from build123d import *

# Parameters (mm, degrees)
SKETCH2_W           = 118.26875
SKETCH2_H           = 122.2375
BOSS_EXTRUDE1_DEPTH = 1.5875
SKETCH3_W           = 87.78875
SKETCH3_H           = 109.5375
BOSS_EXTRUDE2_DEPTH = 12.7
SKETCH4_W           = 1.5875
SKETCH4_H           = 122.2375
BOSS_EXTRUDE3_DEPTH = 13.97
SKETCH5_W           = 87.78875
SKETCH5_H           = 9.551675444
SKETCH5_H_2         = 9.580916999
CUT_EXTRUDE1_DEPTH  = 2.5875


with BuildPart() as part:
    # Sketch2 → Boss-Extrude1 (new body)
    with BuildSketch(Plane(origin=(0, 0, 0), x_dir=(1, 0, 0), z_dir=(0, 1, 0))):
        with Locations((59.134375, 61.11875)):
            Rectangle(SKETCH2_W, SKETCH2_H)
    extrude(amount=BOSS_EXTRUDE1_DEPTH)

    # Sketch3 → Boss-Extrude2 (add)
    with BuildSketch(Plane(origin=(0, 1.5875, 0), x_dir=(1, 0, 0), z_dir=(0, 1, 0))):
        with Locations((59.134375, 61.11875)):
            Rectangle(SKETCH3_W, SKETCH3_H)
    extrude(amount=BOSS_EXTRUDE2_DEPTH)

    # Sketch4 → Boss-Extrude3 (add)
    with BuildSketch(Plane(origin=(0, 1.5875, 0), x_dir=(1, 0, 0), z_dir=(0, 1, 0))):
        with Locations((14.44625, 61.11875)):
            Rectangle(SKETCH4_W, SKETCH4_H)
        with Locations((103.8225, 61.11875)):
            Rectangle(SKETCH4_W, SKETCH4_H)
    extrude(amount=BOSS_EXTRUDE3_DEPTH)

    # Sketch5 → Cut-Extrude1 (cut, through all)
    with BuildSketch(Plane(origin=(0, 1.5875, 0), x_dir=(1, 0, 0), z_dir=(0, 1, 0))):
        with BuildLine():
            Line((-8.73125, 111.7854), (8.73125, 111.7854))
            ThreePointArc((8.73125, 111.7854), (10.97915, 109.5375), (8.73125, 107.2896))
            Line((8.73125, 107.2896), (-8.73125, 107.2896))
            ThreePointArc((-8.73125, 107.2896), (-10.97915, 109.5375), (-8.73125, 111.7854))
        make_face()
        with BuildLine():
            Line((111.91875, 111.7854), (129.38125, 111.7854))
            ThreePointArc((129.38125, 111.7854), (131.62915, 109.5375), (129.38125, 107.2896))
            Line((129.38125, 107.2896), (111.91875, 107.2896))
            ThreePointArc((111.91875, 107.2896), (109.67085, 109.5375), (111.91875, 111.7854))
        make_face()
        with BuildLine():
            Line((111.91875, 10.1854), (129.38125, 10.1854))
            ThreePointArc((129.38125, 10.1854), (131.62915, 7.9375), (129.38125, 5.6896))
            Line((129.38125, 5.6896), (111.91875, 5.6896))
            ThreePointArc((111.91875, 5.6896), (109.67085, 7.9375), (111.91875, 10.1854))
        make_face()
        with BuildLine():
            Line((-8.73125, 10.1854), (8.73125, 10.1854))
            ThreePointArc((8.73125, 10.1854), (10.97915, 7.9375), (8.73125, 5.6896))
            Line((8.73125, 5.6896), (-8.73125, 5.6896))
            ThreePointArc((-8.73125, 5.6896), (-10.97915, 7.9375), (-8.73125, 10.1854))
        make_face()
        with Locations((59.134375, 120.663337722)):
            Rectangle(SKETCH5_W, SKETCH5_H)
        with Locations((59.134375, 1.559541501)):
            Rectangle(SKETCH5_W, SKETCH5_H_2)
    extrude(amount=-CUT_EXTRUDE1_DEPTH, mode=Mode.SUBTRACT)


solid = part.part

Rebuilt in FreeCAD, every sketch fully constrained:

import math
import FreeCAD as App
import Part
import Sketcher
from FreeCAD import Vector
Q = App.Units.Quantity

doc = App.newDocument("Part")
params = doc.addObject("Spreadsheet::Sheet", "Params")
for row, (alias, value) in enumerate([
    ("sketch1_width", "4.65625 in"),
    ("sketch1_height", "4.8125 in"),
    ("pad1_length", "0.0625 in"),
    ("sketch2_height", "4.3125 in"),
    ("pad2_length", "0.5 in"),
    ("sketch3_width", "0.0625 in"),
    ("sketch3_height", "4.8125 in"),
    ("pad3_length", "0.55 in"),
    ("sketch4_width", "0.6875 in"),
], start=1):
    params.set(f"A{row}", alias)
    params.set(f"B{row}", "=" + value)
    params.setAlias(f"B{row}", alias)

body = doc.addObject("PartDesign::Body", "Body")

# Sketch on XZ plane
sketch1 = body.newObject("Sketcher::SketchObject", "Sketch")
sketch1.AttachmentSupport = (doc.getObject("XZ_Plane"), [""])
sketch1.MapMode = "FlatFace"
sketch1.addGeometry(Part.LineSegment(Vector(0, -122.2375, 0), Vector(0, 0, 0)), False)
sketch1.addGeometry(Part.LineSegment(Vector(0, 0, 0), Vector(118.26875, 0, 0)), False)
sketch1.addGeometry(Part.LineSegment(Vector(118.26875, 0, 0), Vector(118.26875, -122.2375, 0)), False)
sketch1.addGeometry(Part.LineSegment(Vector(118.26875, -122.2375, 0), Vector(0, -122.2375, 0)), False)
sketch1.addConstraint(Sketcher.Constraint("Coincident", 0, 2, 1, 1))
sketch1.addConstraint(Sketcher.Constraint("Coincident", 1, 2, 2, 1))
sketch1.addConstraint(Sketcher.Constraint("Coincident", 2, 2, 3, 1))
sketch1.addConstraint(Sketcher.Constraint("Coincident", 3, 2, 0, 1))
sketch1.addConstraint(Sketcher.Constraint("Vertical", 0))
sketch1.addConstraint(Sketcher.Constraint("Horizontal", 1))
sketch1.addConstraint(Sketcher.Constraint("Vertical", 2))
sketch1.addConstraint(Sketcher.Constraint("Horizontal", 3))
sketch1.addConstraint(Sketcher.Constraint("Coincident", 0, 2, -1, 1))
sketch1.addConstraint(Sketcher.Constraint("DistanceX", 1, 1, 1, 2, Q("4.65625 in")))
sketch1.addConstraint(Sketcher.Constraint("DistanceY", 0, 1, 0, 2, Q("4.8125 in")))
sketch1.setExpression("Constraints[9]", "Params.sketch1_width")
sketch1.setExpression("Constraints[10]", "Params.sketch1_height")
pad1 = body.newObject("PartDesign::Pad", "Pad")
pad1.Profile = sketch1
pad1.setExpression("Length", "Params.pad1_length")
pad1.Reversed = True

# Sketch on XZ plane
sketch2 = body.newObject("Sketcher::SketchObject", "Sketch001")
sketch2.AttachmentSupport = (doc.getObject("XZ_Plane"), [""])
sketch2.MapMode = "FlatFace"
sketch2.AttachmentOffset = App.Placement(Vector(0, 0, -0.0625 * 25.4), App.Rotation())
sketch2.addGeometry(Part.LineSegment(Vector(15.24, -115.8875, 0), Vector(15.24, -6.35, 0)), False)
sketch2.addGeometry(Part.LineSegment(Vector(15.24, -6.35, 0), Vector(103.02875, -6.35, 0)), False)
sketch2.addGeometry(Part.LineSegment(Vector(103.02875, -6.35, 0), Vector(103.02875, -115.8875, 0)), False)
sketch2.addGeometry(Part.LineSegment(Vector(103.02875, -115.8875, 0), Vector(15.24, -115.8875, 0)), False)
sketch2.addConstraint(Sketcher.Constraint("Coincident", 0, 2, 1, 1))
sketch2.addConstraint(Sketcher.Constraint("Coincident", 1, 2, 2, 1))
sketch2.addConstraint(Sketcher.Constraint("Coincident", 2, 2, 3, 1))
sketch2.addConstraint(Sketcher.Constraint("Coincident", 3, 2, 0, 1))
sketch2.addConstraint(Sketcher.Constraint("Vertical", 0))
sketch2.addConstraint(Sketcher.Constraint("Horizontal", 1))
sketch2.addConstraint(Sketcher.Constraint("Vertical", 2))
sketch2.addConstraint(Sketcher.Constraint("Horizontal", 3))
sketch2.addConstraint(Sketcher.Constraint("DistanceX", -1, 1, 0, 2, Q("0.6 in")))
sketch2.addConstraint(Sketcher.Constraint("DistanceY", 0, 1, 0, 2, Q("4.3125 in")))
sketch2.addConstraint(Sketcher.Constraint("DistanceY", 0, 2, -1, 1, Q("0.25 in")))
sketch2.addConstraint(Sketcher.Constraint("DistanceX", 1, 1, 1, 2, Q("87.78875 mm")))
sketch2.setExpression("Constraints[9]", "Params.sketch2_height")
pad2 = body.newObject("PartDesign::Pad", "Pad001")
pad2.Profile = sketch2
pad2.setExpression("Length", "Params.pad2_length")
pad2.Reversed = True

# Sketch on XZ plane
sketch3 = body.newObject("Sketcher::SketchObject", "Sketch002")
sketch3.AttachmentSupport = (doc.getObject("XZ_Plane"), [""])
sketch3.MapMode = "FlatFace"
sketch3.AttachmentOffset = App.Placement(Vector(0, 0, -0.0625 * 25.4), App.Rotation())
sketch3.addGeometry(Part.LineSegment(Vector(13.6525, -122.2375, 0), Vector(13.6525, 0, 0)), False)
sketch3.addGeometry(Part.LineSegment(Vector(13.6525, 0, 0), Vector(15.24, 0, 0)), False)
sketch3.addGeometry(Part.LineSegment(Vector(15.24, 0, 0), Vector(15.24, -122.2375, 0)), False)
sketch3.addGeometry(Part.LineSegment(Vector(15.24, -122.2375, 0), Vector(13.6525, -122.2375, 0)), False)
sketch3.addGeometry(Part.LineSegment(Vector(103.02875, -122.2375, 0), Vector(103.02875, 0, 0)), False)
sketch3.addGeometry(Part.LineSegment(Vector(103.02875, 0, 0), Vector(104.61625, 0, 0)), False)
sketch3.addGeometry(Part.LineSegment(Vector(104.61625, 0, 0), Vector(104.61625, -122.2375, 0)), False)
sketch3.addGeometry(Part.LineSegment(Vector(104.61625, -122.2375, 0), Vector(103.02875, -122.2375, 0)), False)
sketch3.addConstraint(Sketcher.Constraint("Coincident", 0, 2, 1, 1))
sketch3.addConstraint(Sketcher.Constraint("Coincident", 1, 2, 2, 1))
sketch3.addConstraint(Sketcher.Constraint("Coincident", 2, 2, 3, 1))
sketch3.addConstraint(Sketcher.Constraint("Coincident", 3, 2, 0, 1))
sketch3.addConstraint(Sketcher.Constraint("Coincident", 4, 2, 5, 1))
sketch3.addConstraint(Sketcher.Constraint("Coincident", 5, 2, 6, 1))
sketch3.addConstraint(Sketcher.Constraint("Coincident", 6, 2, 7, 1))
sketch3.addConstraint(Sketcher.Constraint("Coincident", 7, 2, 4, 1))
sketch3.addConstraint(Sketcher.Constraint("Vertical", 0))
sketch3.addConstraint(Sketcher.Constraint("Horizontal", 1))
sketch3.addConstraint(Sketcher.Constraint("Vertical", 2))
sketch3.addConstraint(Sketcher.Constraint("Horizontal", 3))
sketch3.addConstraint(Sketcher.Constraint("Vertical", 4))
sketch3.addConstraint(Sketcher.Constraint("Horizontal", 5))
sketch3.addConstraint(Sketcher.Constraint("Vertical", 6))
sketch3.addConstraint(Sketcher.Constraint("Horizontal", 7))
sketch3.addConstraint(Sketcher.Constraint("PointOnObject", 0, 2, -1))
sketch3.addConstraint(Sketcher.Constraint("PointOnObject", 4, 2, -1))
sketch3.addConstraint(Sketcher.Constraint("Horizontal", 3, 2, 6, 2))
sketch3.addConstraint(Sketcher.Constraint("Equal", 3, 5))
sketch3.addConstraint(Sketcher.Constraint("DistanceX", -1, 1, 1, 2, Q("0.6 in")))
sketch3.addConstraint(Sketcher.Constraint("DistanceX", 1, 1, 1, 2, Q("0.0625 in")))
sketch3.addConstraint(Sketcher.Constraint("DistanceY", 0, 1, 0, 2, Q("4.8125 in")))
sketch3.addConstraint(Sketcher.Constraint("DistanceX", -1, 1, 4, 2, Q("103.02875 mm")))
sketch3.setExpression("Constraints[21]", "Params.sketch3_width")
sketch3.setExpression("Constraints[22]", "Params.sketch3_height")
pad3 = body.newObject("PartDesign::Pad", "Pad002")
pad3.Profile = sketch3
pad3.setExpression("Length", "Params.pad3_length")
pad3.Reversed = True

# Sketch on XZ plane
sketch4 = body.newObject("Sketcher::SketchObject", "Sketch003")
sketch4.AttachmentSupport = (doc.getObject("XZ_Plane"), [""])
sketch4.MapMode = "FlatFace"
sketch4.AttachmentOffset = App.Placement(Vector(0, 0, -0.0625 * 25.4), App.Rotation())
sketch4.addGeometry(Part.LineSegment(Vector(8.73125, -111.7854, 0), Vector(-8.73125, -111.7854, 0)), False)
sketch4.addGeometry(Part.ArcOfCircle(Part.Circle(Vector(-8.73125, -109.5375, 0), Vector(0, 0, 1), 2.2479), math.radians(90), math.radians(270)), False)
sketch4.addGeometry(Part.LineSegment(Vector(-8.73125, -107.2896, 0), Vector(8.73125, -107.2896, 0)), False)
sketch4.addGeometry(Part.ArcOfCircle(Part.Circle(Vector(8.73125, -109.5375, 0), Vector(0, 0, 1), 2.2479), math.radians(-90), math.radians(90)), False)
sketch4.addGeometry(Part.LineSegment(Vector(129.38125, -111.7854, 0), Vector(111.91875, -111.7854, 0)), False)
sketch4.addGeometry(Part.ArcOfCircle(Part.Circle(Vector(111.91875, -109.5375, 0), Vector(0, 0, 1), 2.2479), math.radians(90), math.radians(270)), False)
sketch4.addGeometry(Part.LineSegment(Vector(111.91875, -107.2896, 0), Vector(129.38125, -107.2896, 0)), False)
sketch4.addGeometry(Part.ArcOfCircle(Part.Circle(Vector(129.38125, -109.5375, 0), Vector(0, 0, 1), 2.2479), math.radians(-90), math.radians(90)), False)
sketch4.addGeometry(Part.LineSegment(Vector(129.38125, -10.1854, 0), Vector(111.91875, -10.1854, 0)), False)
sketch4.addGeometry(Part.ArcOfCircle(Part.Circle(Vector(111.91875, -7.9375, 0), Vector(0, 0, 1), 2.2479), math.radians(90), math.radians(270)), False)
sketch4.addGeometry(Part.LineSegment(Vector(111.91875, -5.6896, 0), Vector(129.38125, -5.6896, 0)), False)
sketch4.addGeometry(Part.ArcOfCircle(Part.Circle(Vector(129.38125, -7.9375, 0), Vector(0, 0, 1), 2.2479), math.radians(-90), math.radians(90)), False)
sketch4.addGeometry(Part.LineSegment(Vector(8.73125, -10.1854, 0), Vector(-8.73125, -10.1854, 0)), False)
sketch4.addGeometry(Part.ArcOfCircle(Part.Circle(Vector(-8.73125, -7.9375, 0), Vector(0, 0, 1), 2.2479), math.radians(90), math.radians(270)), False)
sketch4.addGeometry(Part.LineSegment(Vector(-8.73125, -5.6896, 0), Vector(8.73125, -5.6896, 0)), False)
sketch4.addGeometry(Part.ArcOfCircle(Part.Circle(Vector(8.73125, -7.9375, 0), Vector(0, 0, 1), 2.2479), math.radians(-90), math.radians(90)), False)
sketch4.addGeometry(Part.LineSegment(Vector(15.24, -125.439175, 0), Vector(15.24, -115.8875, 0)), False)
sketch4.addGeometry(Part.LineSegment(Vector(15.24, -115.8875, 0), Vector(103.02875, -115.8875, 0)), False)
sketch4.addGeometry(Part.LineSegment(Vector(103.02875, -115.8875, 0), Vector(103.02875, -125.439175, 0)), False)
sketch4.addGeometry(Part.LineSegment(Vector(103.02875, -125.439175, 0), Vector(15.24, -125.439175, 0)), False)
sketch4.addGeometry(Part.LineSegment(Vector(15.24, -6.35, 0), Vector(15.24, 3.230917, 0)), False)
sketch4.addGeometry(Part.LineSegment(Vector(15.24, 3.230917, 0), Vector(103.02875, 3.230917, 0)), False)
sketch4.addGeometry(Part.LineSegment(Vector(103.02875, 3.230917, 0), Vector(103.02875, -6.35, 0)), False)
sketch4.addGeometry(Part.LineSegment(Vector(103.02875, -6.35, 0), Vector(15.24, -6.35, 0)), False)
sketch4.addConstraint(Sketcher.Constraint("Tangent", 0, 2, 1, 2))
sketch4.addConstraint(Sketcher.Constraint("Tangent", 1, 1, 2, 1))
sketch4.addConstraint(Sketcher.Constraint("Tangent", 2, 2, 3, 2))
sketch4.addConstraint(Sketcher.Constraint("Tangent", 3, 1, 0, 1))
sketch4.addConstraint(Sketcher.Constraint("Tangent", 4, 2, 5, 2))
sketch4.addConstraint(Sketcher.Constraint("Tangent", 5, 1, 6, 1))
sketch4.addConstraint(Sketcher.Constraint("Tangent", 6, 2, 7, 2))
sketch4.addConstraint(Sketcher.Constraint("Tangent", 7, 1, 4, 1))
sketch4.addConstraint(Sketcher.Constraint("Tangent", 8, 2, 9, 2))
sketch4.addConstraint(Sketcher.Constraint("Tangent", 9, 1, 10, 1))
sketch4.addConstraint(Sketcher.Constraint("Tangent", 10, 2, 11, 2))
sketch4.addConstraint(Sketcher.Constraint("Tangent", 11, 1, 8, 1))
sketch4.addConstraint(Sketcher.Constraint("Tangent", 12, 2, 13, 2))
sketch4.addConstraint(Sketcher.Constraint("Tangent", 13, 1, 14, 1))
sketch4.addConstraint(Sketcher.Constraint("Tangent", 14, 2, 15, 2))
sketch4.addConstraint(Sketcher.Constraint("Tangent", 15, 1, 12, 1))
sketch4.addConstraint(Sketcher.Constraint("Coincident", 16, 2, 17, 1))
sketch4.addConstraint(Sketcher.Constraint("Coincident", 17, 2, 18, 1))
sketch4.addConstraint(Sketcher.Constraint("Coincident", 18, 2, 19, 1))
sketch4.addConstraint(Sketcher.Constraint("Coincident", 19, 2, 16, 1))
sketch4.addConstraint(Sketcher.Constraint("Coincident", 20, 2, 21, 1))
sketch4.addConstraint(Sketcher.Constraint("Coincident", 21, 2, 22, 1))
sketch4.addConstraint(Sketcher.Constraint("Coincident", 22, 2, 23, 1))
sketch4.addConstraint(Sketcher.Constraint("Coincident", 23, 2, 20, 1))
sketch4.addConstraint(Sketcher.Constraint("Horizontal", 0))
sketch4.addConstraint(Sketcher.Constraint("Horizontal", 2))
sketch4.addConstraint(Sketcher.Constraint("Horizontal", 4))
sketch4.addConstraint(Sketcher.Constraint("Horizontal", 6))
sketch4.addConstraint(Sketcher.Constraint("Horizontal", 8))
sketch4.addConstraint(Sketcher.Constraint("Horizontal", 10))
sketch4.addConstraint(Sketcher.Constraint("Horizontal", 12))
sketch4.addConstraint(Sketcher.Constraint("Horizontal", 14))
sketch4.addConstraint(Sketcher.Constraint("Vertical", 16))
sketch4.addConstraint(Sketcher.Constraint("Horizontal", 17))
sketch4.addConstraint(Sketcher.Constraint("Vertical", 18))
sketch4.addConstraint(Sketcher.Constraint("Horizontal", 19))
sketch4.addConstraint(Sketcher.Constraint("Vertical", 20))
sketch4.addConstraint(Sketcher.Constraint("Horizontal", 21))
sketch4.addConstraint(Sketcher.Constraint("Vertical", 22))
sketch4.addConstraint(Sketcher.Constraint("Horizontal", 23))
sketch4.addConstraint(Sketcher.Constraint("Equal", 3, 5))
sketch4.addConstraint(Sketcher.Constraint("Equal", 7, 9))
sketch4.addConstraint(Sketcher.Constraint("Equal", 11, 13))
sketch4.addConstraint(Sketcher.Constraint("Horizontal", 3, 3, 5, 3))
sketch4.addConstraint(Sketcher.Constraint("Horizontal", 11, 3, 13, 3))
sketch4.addConstraint(Sketcher.Constraint("Vertical", 5, 3, 9, 3))
sketch4.addConstraint(Sketcher.Constraint("Vertical", 7, 3, 11, 3))
sketch4.addConstraint(Sketcher.Constraint("Vertical", 1, 3, 13, 3))
sketch4.addConstraint(Sketcher.Constraint("Vertical", 3, 3, 15, 3))
sketch4.addConstraint(Sketcher.Constraint("Vertical", 19, 2, 20, 2))
sketch4.addConstraint(Sketcher.Constraint("Vertical", 18, 2, 21, 2))
sketch4.addConstraint(Sketcher.Constraint("Equal", 2, 4))
sketch4.addConstraint(Sketcher.Constraint("DistanceY", 5, 3, 9, 3, Q("4 in")))
sketch4.addConstraint(Sketcher.Constraint("DistanceX", -1, 1, 16, 2, Q("0.6 in")))
sketch4.addConstraint(Sketcher.Constraint("Radius", 1, Q("0.0885 in")))
sketch4.addConstraint(Sketcher.Constraint("DistanceX", 0, 2, 0, 1, Q("0.6875 in")))
sketch4.addConstraint(Sketcher.Constraint("DistanceY", 22, 2, -1, 1, Q("0.25 in")))
sketch4.addConstraint(Sketcher.Constraint("DistanceX", 1, 3, 5, 3, Q("4.75 in")))
sketch4.addConstraint(Sketcher.Constraint("DistanceY", 16, 2, 3, 3, Q("0.25 in")))
sketch4.addConstraint(Sketcher.Constraint("DistanceX", 17, 2, 4, 2, Q("0.35 in")))
sketch4.addConstraint(Sketcher.Constraint("DistanceX", 1, 3, -1, 1, Q("0.34375 in")))
sketch4.addConstraint(Sketcher.Constraint("DistanceY", 1, 3, -1, 1, Q("4.3125 in")))
sketch4.addConstraint(Sketcher.Constraint("DistanceY", 16, 1, 16, 2, Q("9.551675 mm")))
sketch4.addConstraint(Sketcher.Constraint("DistanceY", 20, 1, 20, 2, Q("9.580917 mm")))
sketch4.setExpression("Constraints[55]", "Params.sketch4_width")
pocket1 = body.newObject("PartDesign::Pocket", "Pocket")
pocket1.Profile = sketch4
pocket1.Type = "ThroughAll"
pocket1.Reversed = True

doc.recompute()
